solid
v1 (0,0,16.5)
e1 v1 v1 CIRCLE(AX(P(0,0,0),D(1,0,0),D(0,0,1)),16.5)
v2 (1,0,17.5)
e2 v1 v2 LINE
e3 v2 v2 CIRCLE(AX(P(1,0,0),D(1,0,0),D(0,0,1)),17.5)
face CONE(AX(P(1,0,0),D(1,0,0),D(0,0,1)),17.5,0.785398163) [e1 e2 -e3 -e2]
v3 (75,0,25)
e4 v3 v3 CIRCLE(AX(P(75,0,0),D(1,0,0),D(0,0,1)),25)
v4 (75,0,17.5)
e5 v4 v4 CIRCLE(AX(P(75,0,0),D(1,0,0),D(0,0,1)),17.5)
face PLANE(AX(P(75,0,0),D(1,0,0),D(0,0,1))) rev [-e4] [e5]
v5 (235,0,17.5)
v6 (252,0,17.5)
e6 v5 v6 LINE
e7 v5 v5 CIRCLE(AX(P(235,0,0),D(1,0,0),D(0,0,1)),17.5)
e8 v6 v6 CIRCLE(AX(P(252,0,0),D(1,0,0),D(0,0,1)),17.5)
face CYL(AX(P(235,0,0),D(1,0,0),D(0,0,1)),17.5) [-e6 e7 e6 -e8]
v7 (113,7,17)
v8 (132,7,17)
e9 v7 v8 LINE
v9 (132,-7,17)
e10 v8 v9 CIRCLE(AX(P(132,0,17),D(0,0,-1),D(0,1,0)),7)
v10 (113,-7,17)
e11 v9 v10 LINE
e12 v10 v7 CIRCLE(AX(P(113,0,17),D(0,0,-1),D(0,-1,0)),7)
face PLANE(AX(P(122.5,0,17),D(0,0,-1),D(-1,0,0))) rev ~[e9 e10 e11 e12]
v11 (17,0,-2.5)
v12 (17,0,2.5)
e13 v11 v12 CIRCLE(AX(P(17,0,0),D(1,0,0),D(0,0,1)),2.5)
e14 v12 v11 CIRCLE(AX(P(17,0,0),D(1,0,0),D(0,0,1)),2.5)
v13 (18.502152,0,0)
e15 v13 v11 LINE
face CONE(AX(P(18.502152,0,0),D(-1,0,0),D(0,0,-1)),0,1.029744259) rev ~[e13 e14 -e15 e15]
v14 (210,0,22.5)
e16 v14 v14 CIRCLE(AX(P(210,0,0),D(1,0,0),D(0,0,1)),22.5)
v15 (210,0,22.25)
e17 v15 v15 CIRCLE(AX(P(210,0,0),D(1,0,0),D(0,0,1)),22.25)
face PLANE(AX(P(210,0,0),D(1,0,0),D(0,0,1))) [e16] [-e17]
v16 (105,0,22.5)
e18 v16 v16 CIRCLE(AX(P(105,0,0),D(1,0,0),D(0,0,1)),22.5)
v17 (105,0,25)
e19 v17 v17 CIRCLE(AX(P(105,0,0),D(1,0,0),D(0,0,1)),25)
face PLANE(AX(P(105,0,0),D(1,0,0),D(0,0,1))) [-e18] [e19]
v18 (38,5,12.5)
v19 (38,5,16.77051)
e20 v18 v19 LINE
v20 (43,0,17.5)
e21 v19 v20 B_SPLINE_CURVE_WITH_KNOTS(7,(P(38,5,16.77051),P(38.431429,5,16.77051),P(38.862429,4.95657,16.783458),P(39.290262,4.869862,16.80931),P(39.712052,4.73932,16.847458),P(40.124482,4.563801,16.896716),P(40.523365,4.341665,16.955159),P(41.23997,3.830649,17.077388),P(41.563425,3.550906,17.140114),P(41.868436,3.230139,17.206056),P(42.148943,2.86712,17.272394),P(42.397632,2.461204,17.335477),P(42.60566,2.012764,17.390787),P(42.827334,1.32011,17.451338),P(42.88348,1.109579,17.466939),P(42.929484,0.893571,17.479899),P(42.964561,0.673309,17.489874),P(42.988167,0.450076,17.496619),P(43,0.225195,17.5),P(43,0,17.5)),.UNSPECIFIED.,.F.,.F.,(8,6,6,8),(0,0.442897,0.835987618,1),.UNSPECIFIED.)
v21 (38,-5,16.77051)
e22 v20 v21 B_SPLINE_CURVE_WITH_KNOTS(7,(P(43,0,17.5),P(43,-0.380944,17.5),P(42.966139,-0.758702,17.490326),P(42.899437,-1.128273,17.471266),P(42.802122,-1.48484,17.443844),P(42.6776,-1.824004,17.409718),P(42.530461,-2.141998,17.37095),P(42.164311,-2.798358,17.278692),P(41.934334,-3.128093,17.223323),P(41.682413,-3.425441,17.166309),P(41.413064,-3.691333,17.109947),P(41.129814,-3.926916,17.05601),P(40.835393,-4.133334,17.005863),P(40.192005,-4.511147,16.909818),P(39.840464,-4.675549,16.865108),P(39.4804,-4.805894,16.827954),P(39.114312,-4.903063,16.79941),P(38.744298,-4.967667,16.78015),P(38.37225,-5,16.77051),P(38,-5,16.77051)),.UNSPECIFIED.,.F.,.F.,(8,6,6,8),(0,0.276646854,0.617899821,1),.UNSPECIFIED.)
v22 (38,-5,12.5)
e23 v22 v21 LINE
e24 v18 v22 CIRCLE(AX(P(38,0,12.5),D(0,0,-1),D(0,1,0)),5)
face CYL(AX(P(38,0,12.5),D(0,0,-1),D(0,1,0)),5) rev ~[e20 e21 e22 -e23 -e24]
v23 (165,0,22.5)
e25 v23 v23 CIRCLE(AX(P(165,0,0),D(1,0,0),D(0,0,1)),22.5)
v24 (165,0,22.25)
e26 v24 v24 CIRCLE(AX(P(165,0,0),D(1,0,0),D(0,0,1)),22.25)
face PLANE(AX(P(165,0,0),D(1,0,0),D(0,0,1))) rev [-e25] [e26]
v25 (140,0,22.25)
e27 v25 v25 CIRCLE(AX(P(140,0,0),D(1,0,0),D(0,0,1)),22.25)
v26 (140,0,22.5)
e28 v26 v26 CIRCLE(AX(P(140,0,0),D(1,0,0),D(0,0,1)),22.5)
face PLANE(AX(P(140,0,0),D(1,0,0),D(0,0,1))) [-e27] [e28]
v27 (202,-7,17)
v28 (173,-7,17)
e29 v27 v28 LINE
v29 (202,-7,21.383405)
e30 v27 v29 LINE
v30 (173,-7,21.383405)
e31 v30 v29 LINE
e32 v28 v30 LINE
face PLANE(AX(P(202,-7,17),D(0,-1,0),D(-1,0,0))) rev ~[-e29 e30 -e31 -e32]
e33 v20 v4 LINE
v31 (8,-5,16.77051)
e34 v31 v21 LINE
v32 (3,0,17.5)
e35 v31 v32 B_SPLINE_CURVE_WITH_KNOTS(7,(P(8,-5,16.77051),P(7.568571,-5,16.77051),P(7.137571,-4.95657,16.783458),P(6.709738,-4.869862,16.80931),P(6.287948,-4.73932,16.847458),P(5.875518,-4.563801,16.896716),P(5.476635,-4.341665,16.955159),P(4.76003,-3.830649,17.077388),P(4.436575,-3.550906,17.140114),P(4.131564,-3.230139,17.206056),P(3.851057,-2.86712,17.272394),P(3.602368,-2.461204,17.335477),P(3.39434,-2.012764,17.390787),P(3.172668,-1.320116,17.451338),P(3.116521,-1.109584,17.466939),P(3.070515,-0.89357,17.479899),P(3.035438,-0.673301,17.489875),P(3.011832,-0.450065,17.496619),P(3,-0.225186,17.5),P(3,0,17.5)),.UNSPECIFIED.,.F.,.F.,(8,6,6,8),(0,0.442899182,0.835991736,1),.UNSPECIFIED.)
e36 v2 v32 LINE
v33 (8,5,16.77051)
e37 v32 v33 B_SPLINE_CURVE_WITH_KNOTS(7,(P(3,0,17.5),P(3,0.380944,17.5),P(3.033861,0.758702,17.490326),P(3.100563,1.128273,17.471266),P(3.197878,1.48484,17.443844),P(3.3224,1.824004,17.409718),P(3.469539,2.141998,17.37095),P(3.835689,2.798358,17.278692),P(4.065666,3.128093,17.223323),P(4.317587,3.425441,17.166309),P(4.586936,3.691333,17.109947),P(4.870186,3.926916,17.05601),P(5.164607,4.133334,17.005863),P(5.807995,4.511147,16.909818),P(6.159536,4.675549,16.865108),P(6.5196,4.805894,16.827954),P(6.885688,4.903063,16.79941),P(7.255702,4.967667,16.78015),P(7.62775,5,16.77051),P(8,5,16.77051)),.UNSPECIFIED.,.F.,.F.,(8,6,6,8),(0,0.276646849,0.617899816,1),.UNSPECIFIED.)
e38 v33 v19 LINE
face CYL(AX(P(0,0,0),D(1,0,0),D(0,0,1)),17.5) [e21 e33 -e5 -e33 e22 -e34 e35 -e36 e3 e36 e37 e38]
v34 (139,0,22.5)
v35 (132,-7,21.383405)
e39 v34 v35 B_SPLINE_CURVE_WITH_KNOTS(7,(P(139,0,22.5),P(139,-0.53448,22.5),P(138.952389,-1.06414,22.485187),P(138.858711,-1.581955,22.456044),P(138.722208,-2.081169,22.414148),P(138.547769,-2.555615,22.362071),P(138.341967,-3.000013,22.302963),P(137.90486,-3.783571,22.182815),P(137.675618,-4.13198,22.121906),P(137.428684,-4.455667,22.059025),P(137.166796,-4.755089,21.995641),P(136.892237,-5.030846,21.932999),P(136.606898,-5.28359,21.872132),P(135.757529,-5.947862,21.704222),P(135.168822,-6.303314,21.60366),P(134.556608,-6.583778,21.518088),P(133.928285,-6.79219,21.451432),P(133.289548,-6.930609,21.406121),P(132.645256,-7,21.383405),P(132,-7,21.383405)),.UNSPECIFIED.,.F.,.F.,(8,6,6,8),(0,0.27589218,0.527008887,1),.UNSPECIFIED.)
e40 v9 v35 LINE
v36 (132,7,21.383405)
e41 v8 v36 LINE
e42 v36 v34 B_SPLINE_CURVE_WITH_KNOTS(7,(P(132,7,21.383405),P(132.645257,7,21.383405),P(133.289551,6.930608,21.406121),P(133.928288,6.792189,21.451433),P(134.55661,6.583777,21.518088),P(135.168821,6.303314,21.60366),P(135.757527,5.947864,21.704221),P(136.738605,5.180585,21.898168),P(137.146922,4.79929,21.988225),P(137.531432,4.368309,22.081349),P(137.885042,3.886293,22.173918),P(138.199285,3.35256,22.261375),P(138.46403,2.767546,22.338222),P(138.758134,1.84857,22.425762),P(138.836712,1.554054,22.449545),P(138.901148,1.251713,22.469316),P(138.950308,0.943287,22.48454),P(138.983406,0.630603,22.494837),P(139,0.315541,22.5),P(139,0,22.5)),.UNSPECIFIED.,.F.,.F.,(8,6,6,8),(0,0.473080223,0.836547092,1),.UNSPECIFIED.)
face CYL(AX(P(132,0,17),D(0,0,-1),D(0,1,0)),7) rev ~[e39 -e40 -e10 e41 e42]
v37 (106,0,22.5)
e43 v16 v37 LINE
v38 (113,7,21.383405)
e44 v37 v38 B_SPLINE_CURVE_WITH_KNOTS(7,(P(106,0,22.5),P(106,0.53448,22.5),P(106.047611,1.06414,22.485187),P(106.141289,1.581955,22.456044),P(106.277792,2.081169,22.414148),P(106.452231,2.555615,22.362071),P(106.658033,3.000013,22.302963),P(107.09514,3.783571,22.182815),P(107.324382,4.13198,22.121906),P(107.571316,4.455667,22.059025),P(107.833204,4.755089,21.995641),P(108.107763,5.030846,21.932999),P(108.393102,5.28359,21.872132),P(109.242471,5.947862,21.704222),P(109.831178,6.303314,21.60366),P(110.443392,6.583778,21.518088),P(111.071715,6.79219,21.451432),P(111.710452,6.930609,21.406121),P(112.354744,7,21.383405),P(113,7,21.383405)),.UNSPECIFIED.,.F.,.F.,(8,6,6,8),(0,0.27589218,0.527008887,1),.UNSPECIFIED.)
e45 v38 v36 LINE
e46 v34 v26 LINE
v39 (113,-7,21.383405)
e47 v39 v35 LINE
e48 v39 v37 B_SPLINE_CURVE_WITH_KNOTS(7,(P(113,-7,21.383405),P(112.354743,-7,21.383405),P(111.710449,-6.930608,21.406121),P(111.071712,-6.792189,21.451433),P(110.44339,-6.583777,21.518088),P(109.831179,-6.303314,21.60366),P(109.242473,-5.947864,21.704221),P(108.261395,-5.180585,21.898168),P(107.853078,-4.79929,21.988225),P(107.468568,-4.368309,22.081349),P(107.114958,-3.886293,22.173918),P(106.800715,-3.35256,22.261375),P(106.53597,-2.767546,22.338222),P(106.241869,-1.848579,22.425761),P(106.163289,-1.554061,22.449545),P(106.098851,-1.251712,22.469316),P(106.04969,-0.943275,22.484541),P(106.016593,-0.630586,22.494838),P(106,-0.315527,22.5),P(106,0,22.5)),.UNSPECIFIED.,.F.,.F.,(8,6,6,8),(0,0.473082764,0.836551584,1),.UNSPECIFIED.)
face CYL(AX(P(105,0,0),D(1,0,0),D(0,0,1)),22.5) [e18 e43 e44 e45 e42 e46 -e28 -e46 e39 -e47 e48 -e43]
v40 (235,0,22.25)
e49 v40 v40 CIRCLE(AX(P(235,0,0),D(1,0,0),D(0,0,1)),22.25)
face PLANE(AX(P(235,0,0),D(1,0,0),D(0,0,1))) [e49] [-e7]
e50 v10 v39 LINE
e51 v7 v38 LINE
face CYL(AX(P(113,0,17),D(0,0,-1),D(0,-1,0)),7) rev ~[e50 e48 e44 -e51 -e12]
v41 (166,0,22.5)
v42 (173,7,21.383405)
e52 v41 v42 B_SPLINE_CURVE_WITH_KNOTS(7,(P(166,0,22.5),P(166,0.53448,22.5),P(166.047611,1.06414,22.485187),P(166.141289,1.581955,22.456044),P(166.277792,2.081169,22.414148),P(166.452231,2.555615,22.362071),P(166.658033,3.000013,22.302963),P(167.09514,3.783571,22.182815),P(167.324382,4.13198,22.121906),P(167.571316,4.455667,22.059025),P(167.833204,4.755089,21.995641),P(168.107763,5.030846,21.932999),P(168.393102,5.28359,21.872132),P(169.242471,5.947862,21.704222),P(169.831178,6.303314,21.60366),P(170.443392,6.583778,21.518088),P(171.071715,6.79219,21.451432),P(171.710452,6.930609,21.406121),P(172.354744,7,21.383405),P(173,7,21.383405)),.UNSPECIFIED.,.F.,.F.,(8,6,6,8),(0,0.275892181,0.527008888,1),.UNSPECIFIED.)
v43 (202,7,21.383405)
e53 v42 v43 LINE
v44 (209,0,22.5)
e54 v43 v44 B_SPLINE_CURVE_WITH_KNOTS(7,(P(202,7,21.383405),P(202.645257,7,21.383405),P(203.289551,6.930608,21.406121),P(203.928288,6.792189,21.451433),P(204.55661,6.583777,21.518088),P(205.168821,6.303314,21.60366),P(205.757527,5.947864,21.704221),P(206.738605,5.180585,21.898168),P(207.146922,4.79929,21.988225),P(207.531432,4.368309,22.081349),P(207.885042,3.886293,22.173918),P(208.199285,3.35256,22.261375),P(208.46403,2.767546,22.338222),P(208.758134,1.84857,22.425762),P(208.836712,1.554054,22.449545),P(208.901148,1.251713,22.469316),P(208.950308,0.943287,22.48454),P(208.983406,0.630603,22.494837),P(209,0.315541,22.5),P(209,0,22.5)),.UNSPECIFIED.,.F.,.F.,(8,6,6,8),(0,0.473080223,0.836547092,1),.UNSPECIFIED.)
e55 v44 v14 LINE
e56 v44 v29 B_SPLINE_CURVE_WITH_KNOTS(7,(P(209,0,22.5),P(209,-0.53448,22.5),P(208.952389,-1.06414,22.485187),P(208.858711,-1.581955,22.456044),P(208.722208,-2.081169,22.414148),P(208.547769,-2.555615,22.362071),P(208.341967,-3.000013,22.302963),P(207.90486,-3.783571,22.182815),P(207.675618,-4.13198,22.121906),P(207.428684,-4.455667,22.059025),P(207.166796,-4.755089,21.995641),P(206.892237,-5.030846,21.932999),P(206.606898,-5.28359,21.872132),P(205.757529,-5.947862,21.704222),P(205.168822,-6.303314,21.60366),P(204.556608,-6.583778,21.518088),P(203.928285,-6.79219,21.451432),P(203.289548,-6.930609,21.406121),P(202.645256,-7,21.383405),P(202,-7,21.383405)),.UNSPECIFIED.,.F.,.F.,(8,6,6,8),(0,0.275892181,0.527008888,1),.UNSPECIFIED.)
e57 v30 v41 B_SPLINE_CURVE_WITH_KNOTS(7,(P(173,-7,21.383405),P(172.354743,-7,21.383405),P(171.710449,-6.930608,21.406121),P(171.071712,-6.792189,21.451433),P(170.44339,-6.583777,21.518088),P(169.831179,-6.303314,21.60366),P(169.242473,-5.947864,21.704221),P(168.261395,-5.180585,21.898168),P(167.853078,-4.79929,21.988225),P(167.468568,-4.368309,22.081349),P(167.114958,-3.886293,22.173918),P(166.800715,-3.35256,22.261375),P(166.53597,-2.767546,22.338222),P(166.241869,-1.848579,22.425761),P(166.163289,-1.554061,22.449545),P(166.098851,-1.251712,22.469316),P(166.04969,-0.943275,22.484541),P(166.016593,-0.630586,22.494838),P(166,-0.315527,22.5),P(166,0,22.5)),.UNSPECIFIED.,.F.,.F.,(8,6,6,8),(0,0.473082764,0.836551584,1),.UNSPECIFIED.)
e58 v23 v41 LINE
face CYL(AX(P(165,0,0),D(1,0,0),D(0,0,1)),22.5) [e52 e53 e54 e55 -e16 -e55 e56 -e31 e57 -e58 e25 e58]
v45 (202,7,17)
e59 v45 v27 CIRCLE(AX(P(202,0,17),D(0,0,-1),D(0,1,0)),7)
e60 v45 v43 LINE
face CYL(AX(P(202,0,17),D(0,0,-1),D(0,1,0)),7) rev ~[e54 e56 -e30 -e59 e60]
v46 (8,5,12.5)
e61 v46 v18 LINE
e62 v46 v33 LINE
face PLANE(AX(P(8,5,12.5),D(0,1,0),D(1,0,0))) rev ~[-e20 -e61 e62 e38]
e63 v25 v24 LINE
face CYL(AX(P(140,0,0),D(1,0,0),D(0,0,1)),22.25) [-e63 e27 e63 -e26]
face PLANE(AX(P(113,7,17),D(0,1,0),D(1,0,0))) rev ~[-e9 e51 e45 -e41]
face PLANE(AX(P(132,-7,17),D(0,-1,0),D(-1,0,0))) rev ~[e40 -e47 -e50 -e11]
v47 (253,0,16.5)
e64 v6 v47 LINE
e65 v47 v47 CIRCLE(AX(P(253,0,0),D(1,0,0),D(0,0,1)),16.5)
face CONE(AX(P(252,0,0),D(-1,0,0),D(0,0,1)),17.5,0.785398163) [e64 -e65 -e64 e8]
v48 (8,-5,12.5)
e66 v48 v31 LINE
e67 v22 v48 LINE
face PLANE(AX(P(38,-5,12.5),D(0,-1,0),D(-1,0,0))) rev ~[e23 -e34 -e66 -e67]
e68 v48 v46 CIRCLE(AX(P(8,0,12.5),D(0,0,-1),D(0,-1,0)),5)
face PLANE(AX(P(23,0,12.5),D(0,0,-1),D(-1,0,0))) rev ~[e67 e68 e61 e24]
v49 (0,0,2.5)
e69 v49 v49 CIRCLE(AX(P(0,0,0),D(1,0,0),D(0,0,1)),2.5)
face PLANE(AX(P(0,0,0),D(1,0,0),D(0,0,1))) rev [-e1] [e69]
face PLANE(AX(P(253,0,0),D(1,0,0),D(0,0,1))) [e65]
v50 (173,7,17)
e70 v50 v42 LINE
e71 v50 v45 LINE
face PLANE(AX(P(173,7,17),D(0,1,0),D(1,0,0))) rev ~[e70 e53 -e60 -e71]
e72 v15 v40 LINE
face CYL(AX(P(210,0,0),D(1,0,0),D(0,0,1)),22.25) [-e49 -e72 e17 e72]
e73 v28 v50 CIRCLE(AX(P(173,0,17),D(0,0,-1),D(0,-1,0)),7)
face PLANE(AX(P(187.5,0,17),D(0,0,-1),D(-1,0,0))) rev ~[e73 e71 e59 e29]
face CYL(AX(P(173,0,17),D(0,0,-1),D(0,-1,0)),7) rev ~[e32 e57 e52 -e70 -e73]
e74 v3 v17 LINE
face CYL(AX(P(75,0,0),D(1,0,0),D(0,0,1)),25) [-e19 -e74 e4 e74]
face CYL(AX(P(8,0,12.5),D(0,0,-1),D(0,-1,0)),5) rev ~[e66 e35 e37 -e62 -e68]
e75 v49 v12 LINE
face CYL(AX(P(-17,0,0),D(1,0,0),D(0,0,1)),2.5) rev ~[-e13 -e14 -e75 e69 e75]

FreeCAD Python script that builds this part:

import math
import FreeCAD as App
import Part
import Sketcher
from FreeCAD import Vector
Q = App.Units.Quantity


def edges_at(feature, points):
    """Names of the edges that pass closest to the given points."""
    edges = feature.Shape.Edges
    near = lambda p: min(range(len(edges)), key=lambda i: edges[i].distToShape(Part.Vertex(*p))[0])
    return sorted({f"Edge{near(p) + 1}" for p in points})


def add_polygon(sketch, points):
    """Adds a closed chain of lines whose ends are joined by coincident constraints."""
    first, n = sketch.GeometryCount, len(points)
    for a, b in zip(points, points[1:] + points[:1]):
        sketch.addGeometry(Part.LineSegment(App.Vector(*a, 0), App.Vector(*b, 0)), False)
    for i in range(n):
        sketch.addConstraint(Sketcher.Constraint("Coincident", first + i, 2, first + (i + 1) % n, 1))

doc = App.newDocument("Part")
body = doc.addObject("PartDesign::Body", "Body")

# Sketch on XY plane
sketch1 = body.newObject("Sketcher::SketchObject", "Sketch")
sketch1.AttachmentSupport = (doc.getObject("XY_Plane"), [""])
sketch1.MapMode = "FlatFace"
add_polygon(sketch1, [(0, 17.5), (0, 0), (253, 0), (253, 17.5), (235, 17.5), (235, 22.25), (210, 22.25), (210, 22.5), (165, 22.5), (165, 22.25), (140, 22.25), (140, 22.5), (105, 22.5), (105, 25), (75, 25), (75, 17.5)])  # lines 0-15
sketch1.addConstraint([
    Sketcher.Constraint("Vertical", 0),
    Sketcher.Constraint("Horizontal", 1),
    Sketcher.Constraint("Vertical", 2),
    Sketcher.Constraint("Horizontal", 3),
    Sketcher.Constraint("Vertical", 4),
    Sketcher.Constraint("Horizontal", 5),
    Sketcher.Constraint("Vertical", 6),
    Sketcher.Constraint("Horizontal", 7),
    Sketcher.Constraint("Vertical", 8),
    Sketcher.Constraint("Horizontal", 9),
    Sketcher.Constraint("Vertical", 10),
    Sketcher.Constraint("Horizontal", 11),
    Sketcher.Constraint("Vertical", 12),
    Sketcher.Constraint("Horizontal", 13),
    Sketcher.Constraint("Vertical", 14),
    Sketcher.Constraint("Horizontal", 15),
    Sketcher.Constraint("Coincident", 0, 2, -1, 1),
    Sketcher.Constraint("Horizontal", 5, 2, 8, 2),
    Sketcher.Constraint("Horizontal", 7, 2, 10, 2),
    Sketcher.Constraint("Horizontal", 3, 2, 14, 2),
    Sketcher.Constraint("Equal", 5, 9),
    Sketcher.Constraint("DistanceX", 1, 1, 1, 2, Q("253 mm")),
    Sketcher.Constraint("DistanceX", 3, 2, 3, 1, Q("18 mm")),
    Sketcher.Constraint("DistanceX", 5, 2, 5, 1, Q("25 mm")),
    Sketcher.Constraint("DistanceX", 7, 2, 7, 1, Q("45 mm")),
    Sketcher.Constraint("DistanceX", 11, 2, 11, 1, Q("35 mm")),
    Sketcher.Constraint("DistanceX", 13, 2, 13, 1, Q("30 mm")),
    Sketcher.Constraint("DistanceY", 0, 2, 0, 1, Q("17.5 mm")),
    Sketcher.Constraint("DistanceY", 12, 1, 12, 2, Q("2.5 mm")),
    Sketcher.Constraint("DistanceY", 14, 2, 14, 1, Q("7.5 mm")),
    Sketcher.Constraint("DistanceY", 4, 1, 4, 2, Q("4.75 mm")),
])
revolution = body.newObject("PartDesign::Revolution", "Revolution")
revolution.Profile = sketch1
revolution.ReferenceAxis = (sketch1, ["H_Axis"])
revolution.Angle = 360

# Sketch on YZ plane
sketch2 = body.newObject("Sketcher::SketchObject", "Sketch001")
sketch2.AttachmentSupport = (doc.getObject("YZ_Plane"), [""])
sketch2.MapMode = "FlatFace"
sketch2.addGeometry(Part.Circle(Vector(0, 0, 0), Vector(0, 0, 1), 2.5), False)
sketch2.addConstraint([
    Sketcher.Constraint("Coincident", 0, 3, -1, 1),
    Sketcher.Constraint("Diameter", 0, Q("5 mm")),
])
doc.recompute()
hole = body.newObject("PartDesign::Hole", "Hole")
hole.Profile = sketch2
hole.ThreadType = "None"
hole.Diameter = 5
hole.DepthType = "Dimension"
hole.Depth = 17
hole.DrillPoint = "Angled"
hole.DrillPointAngle = 118
hole.Reversed = True

# Sketch on XY plane
sketch3 = body.newObject("Sketcher::SketchObject", "Sketch002")
sketch3.AttachmentSupport = (doc.getObject("XY_Plane"), [""])
sketch3.MapMode = "FlatFace"
sketch3.AttachmentOffset = App.Placement(Vector(0, 0, 17), App.Rotation())
sketch3.addGeometry([
    Part.LineSegment(Vector(132, 7, 0), Vector(113, 7, 0)),  # 0
    Part.ArcOfCircle(Part.Circle(Vector(113, 0, 0), Vector(0, 0, 1), 7), math.radians(90), math.radians(270)),  # 1
    Part.LineSegment(Vector(113, -7, 0), Vector(132, -7, 0)),  # 2
    Part.ArcOfCircle(Part.Circle(Vector(132, 0, 0), Vector(0, 0, 1), 7), math.radians(-90), math.radians(90)),  # 3
    Part.LineSegment(Vector(202, 7, 0), Vector(173, 7, 0)),  # 4
    Part.ArcOfCircle(Part.Circle(Vector(173, 0, 0), Vector(0, 0, 1), 7), math.radians(90), math.radians(270)),  # 5
    Part.LineSegment(Vector(173, -7, 0), Vector(202, -7, 0)),  # 6
    Part.ArcOfCircle(Part.Circle(Vector(202, 0, 0), Vector(0, 0, 1), 7), math.radians(-90), math.radians(90)),  # 7
], False)
sketch3.addConstraint([
    Sketcher.Constraint("Tangent", 0, 2, 1, 1),
    Sketcher.Constraint("Tangent", 1, 2, 2, 1),
    Sketcher.Constraint("Tangent", 2, 2, 3, 1),
    Sketcher.Constraint("Tangent", 3, 2, 0, 1),
    Sketcher.Constraint("Tangent", 4, 2, 5, 1),
    Sketcher.Constraint("Tangent", 5, 2, 6, 1),
    Sketcher.Constraint("Tangent", 6, 2, 7, 1),
    Sketcher.Constraint("Tangent", 7, 2, 4, 1),
    Sketcher.Constraint("Horizontal", 0),
    Sketcher.Constraint("Horizontal", 2),
    Sketcher.Constraint("Horizontal", 4),
    Sketcher.Constraint("Horizontal", 6),
    Sketcher.Constraint("Equal", 3, 5),
    Sketcher.Constraint("PointOnObject", 1, 3, -1),
    Sketcher.Constraint("PointOnObject", 5, 3, -1),
    Sketcher.Constraint("Radius", 1, Q("7 mm")),
    Sketcher.Constraint("DistanceX", 0, 2, 0, 1, Q("19 mm")),
    Sketcher.Constraint("DistanceX", 4, 2, 4, 1, Q("29 mm")),
    Sketcher.Constraint("DistanceX", -1, 1, 1, 3, Q("113 mm")),
    Sketcher.Constraint("DistanceX", -1, 1, 5, 3, Q("173 mm")),
])
pocket1 = body.newObject("PartDesign::Pocket", "Pocket")
pocket1.Profile = sketch3
pocket1.Length = 10
pocket1.Reversed = True

# Sketch on XY plane
sketch4 = body.newObject("Sketcher::SketchObject", "Sketch003")
sketch4.AttachmentSupport = (doc.getObject("XY_Plane"), [""])
sketch4.MapMode = "FlatFace"
sketch4.AttachmentOffset = App.Placement(Vector(0, 0, 12.5), App.Rotation())
sketch4.addGeometry([
    Part.LineSegment(Vector(38, 5, 0), Vector(8, 5, 0)),
    Part.ArcOfCircle(Part.Circle(Vector(8, 0, 0), Vector(0, 0, 1), 5), math.radians(90), math.radians(270)),
    Part.LineSegment(Vector(8, -5, 0), Vector(38, -5, 0)),
    Part.ArcOfCircle(Part.Circle(Vector(38, 0, 0), Vector(0, 0, 1), 5), math.radians(-90), math.radians(90)),
], False)
sketch4.addConstraint([
    Sketcher.Constraint("Tangent", 0, 2, 1, 1),
    Sketcher.Constraint("Tangent", 1, 2, 2, 1),
    Sketcher.Constraint("Tangent", 2, 2, 3, 1),
    Sketcher.Constraint("Tangent", 3, 2, 0, 1),
    Sketcher.Constraint("Horizontal", 0),
    Sketcher.Constraint("Horizontal", 2),
    Sketcher.Constraint("PointOnObject", 1, 3, -1),
    Sketcher.Constraint("Radius", 1, Q("5 mm")),
    Sketcher.Constraint("DistanceX", 0, 2, 0, 1, Q("30 mm")),
    Sketcher.Constraint("DistanceX", -1, 1, 1, 3, Q("8 mm")),
])
pocket2 = body.newObject("PartDesign::Pocket", "Pocket001")
pocket2.Profile = sketch4
pocket2.Length = 10
pocket2.Reversed = True
doc.recompute()

chamfer = body.newObject("PartDesign::Chamfer", "Chamfer")
chamfer.Base = (pocket2, edges_at(pocket2, [(253, 0, -17.5), (0, 0, -17.5)]))
chamfer.Size = 1

doc.recompute()
